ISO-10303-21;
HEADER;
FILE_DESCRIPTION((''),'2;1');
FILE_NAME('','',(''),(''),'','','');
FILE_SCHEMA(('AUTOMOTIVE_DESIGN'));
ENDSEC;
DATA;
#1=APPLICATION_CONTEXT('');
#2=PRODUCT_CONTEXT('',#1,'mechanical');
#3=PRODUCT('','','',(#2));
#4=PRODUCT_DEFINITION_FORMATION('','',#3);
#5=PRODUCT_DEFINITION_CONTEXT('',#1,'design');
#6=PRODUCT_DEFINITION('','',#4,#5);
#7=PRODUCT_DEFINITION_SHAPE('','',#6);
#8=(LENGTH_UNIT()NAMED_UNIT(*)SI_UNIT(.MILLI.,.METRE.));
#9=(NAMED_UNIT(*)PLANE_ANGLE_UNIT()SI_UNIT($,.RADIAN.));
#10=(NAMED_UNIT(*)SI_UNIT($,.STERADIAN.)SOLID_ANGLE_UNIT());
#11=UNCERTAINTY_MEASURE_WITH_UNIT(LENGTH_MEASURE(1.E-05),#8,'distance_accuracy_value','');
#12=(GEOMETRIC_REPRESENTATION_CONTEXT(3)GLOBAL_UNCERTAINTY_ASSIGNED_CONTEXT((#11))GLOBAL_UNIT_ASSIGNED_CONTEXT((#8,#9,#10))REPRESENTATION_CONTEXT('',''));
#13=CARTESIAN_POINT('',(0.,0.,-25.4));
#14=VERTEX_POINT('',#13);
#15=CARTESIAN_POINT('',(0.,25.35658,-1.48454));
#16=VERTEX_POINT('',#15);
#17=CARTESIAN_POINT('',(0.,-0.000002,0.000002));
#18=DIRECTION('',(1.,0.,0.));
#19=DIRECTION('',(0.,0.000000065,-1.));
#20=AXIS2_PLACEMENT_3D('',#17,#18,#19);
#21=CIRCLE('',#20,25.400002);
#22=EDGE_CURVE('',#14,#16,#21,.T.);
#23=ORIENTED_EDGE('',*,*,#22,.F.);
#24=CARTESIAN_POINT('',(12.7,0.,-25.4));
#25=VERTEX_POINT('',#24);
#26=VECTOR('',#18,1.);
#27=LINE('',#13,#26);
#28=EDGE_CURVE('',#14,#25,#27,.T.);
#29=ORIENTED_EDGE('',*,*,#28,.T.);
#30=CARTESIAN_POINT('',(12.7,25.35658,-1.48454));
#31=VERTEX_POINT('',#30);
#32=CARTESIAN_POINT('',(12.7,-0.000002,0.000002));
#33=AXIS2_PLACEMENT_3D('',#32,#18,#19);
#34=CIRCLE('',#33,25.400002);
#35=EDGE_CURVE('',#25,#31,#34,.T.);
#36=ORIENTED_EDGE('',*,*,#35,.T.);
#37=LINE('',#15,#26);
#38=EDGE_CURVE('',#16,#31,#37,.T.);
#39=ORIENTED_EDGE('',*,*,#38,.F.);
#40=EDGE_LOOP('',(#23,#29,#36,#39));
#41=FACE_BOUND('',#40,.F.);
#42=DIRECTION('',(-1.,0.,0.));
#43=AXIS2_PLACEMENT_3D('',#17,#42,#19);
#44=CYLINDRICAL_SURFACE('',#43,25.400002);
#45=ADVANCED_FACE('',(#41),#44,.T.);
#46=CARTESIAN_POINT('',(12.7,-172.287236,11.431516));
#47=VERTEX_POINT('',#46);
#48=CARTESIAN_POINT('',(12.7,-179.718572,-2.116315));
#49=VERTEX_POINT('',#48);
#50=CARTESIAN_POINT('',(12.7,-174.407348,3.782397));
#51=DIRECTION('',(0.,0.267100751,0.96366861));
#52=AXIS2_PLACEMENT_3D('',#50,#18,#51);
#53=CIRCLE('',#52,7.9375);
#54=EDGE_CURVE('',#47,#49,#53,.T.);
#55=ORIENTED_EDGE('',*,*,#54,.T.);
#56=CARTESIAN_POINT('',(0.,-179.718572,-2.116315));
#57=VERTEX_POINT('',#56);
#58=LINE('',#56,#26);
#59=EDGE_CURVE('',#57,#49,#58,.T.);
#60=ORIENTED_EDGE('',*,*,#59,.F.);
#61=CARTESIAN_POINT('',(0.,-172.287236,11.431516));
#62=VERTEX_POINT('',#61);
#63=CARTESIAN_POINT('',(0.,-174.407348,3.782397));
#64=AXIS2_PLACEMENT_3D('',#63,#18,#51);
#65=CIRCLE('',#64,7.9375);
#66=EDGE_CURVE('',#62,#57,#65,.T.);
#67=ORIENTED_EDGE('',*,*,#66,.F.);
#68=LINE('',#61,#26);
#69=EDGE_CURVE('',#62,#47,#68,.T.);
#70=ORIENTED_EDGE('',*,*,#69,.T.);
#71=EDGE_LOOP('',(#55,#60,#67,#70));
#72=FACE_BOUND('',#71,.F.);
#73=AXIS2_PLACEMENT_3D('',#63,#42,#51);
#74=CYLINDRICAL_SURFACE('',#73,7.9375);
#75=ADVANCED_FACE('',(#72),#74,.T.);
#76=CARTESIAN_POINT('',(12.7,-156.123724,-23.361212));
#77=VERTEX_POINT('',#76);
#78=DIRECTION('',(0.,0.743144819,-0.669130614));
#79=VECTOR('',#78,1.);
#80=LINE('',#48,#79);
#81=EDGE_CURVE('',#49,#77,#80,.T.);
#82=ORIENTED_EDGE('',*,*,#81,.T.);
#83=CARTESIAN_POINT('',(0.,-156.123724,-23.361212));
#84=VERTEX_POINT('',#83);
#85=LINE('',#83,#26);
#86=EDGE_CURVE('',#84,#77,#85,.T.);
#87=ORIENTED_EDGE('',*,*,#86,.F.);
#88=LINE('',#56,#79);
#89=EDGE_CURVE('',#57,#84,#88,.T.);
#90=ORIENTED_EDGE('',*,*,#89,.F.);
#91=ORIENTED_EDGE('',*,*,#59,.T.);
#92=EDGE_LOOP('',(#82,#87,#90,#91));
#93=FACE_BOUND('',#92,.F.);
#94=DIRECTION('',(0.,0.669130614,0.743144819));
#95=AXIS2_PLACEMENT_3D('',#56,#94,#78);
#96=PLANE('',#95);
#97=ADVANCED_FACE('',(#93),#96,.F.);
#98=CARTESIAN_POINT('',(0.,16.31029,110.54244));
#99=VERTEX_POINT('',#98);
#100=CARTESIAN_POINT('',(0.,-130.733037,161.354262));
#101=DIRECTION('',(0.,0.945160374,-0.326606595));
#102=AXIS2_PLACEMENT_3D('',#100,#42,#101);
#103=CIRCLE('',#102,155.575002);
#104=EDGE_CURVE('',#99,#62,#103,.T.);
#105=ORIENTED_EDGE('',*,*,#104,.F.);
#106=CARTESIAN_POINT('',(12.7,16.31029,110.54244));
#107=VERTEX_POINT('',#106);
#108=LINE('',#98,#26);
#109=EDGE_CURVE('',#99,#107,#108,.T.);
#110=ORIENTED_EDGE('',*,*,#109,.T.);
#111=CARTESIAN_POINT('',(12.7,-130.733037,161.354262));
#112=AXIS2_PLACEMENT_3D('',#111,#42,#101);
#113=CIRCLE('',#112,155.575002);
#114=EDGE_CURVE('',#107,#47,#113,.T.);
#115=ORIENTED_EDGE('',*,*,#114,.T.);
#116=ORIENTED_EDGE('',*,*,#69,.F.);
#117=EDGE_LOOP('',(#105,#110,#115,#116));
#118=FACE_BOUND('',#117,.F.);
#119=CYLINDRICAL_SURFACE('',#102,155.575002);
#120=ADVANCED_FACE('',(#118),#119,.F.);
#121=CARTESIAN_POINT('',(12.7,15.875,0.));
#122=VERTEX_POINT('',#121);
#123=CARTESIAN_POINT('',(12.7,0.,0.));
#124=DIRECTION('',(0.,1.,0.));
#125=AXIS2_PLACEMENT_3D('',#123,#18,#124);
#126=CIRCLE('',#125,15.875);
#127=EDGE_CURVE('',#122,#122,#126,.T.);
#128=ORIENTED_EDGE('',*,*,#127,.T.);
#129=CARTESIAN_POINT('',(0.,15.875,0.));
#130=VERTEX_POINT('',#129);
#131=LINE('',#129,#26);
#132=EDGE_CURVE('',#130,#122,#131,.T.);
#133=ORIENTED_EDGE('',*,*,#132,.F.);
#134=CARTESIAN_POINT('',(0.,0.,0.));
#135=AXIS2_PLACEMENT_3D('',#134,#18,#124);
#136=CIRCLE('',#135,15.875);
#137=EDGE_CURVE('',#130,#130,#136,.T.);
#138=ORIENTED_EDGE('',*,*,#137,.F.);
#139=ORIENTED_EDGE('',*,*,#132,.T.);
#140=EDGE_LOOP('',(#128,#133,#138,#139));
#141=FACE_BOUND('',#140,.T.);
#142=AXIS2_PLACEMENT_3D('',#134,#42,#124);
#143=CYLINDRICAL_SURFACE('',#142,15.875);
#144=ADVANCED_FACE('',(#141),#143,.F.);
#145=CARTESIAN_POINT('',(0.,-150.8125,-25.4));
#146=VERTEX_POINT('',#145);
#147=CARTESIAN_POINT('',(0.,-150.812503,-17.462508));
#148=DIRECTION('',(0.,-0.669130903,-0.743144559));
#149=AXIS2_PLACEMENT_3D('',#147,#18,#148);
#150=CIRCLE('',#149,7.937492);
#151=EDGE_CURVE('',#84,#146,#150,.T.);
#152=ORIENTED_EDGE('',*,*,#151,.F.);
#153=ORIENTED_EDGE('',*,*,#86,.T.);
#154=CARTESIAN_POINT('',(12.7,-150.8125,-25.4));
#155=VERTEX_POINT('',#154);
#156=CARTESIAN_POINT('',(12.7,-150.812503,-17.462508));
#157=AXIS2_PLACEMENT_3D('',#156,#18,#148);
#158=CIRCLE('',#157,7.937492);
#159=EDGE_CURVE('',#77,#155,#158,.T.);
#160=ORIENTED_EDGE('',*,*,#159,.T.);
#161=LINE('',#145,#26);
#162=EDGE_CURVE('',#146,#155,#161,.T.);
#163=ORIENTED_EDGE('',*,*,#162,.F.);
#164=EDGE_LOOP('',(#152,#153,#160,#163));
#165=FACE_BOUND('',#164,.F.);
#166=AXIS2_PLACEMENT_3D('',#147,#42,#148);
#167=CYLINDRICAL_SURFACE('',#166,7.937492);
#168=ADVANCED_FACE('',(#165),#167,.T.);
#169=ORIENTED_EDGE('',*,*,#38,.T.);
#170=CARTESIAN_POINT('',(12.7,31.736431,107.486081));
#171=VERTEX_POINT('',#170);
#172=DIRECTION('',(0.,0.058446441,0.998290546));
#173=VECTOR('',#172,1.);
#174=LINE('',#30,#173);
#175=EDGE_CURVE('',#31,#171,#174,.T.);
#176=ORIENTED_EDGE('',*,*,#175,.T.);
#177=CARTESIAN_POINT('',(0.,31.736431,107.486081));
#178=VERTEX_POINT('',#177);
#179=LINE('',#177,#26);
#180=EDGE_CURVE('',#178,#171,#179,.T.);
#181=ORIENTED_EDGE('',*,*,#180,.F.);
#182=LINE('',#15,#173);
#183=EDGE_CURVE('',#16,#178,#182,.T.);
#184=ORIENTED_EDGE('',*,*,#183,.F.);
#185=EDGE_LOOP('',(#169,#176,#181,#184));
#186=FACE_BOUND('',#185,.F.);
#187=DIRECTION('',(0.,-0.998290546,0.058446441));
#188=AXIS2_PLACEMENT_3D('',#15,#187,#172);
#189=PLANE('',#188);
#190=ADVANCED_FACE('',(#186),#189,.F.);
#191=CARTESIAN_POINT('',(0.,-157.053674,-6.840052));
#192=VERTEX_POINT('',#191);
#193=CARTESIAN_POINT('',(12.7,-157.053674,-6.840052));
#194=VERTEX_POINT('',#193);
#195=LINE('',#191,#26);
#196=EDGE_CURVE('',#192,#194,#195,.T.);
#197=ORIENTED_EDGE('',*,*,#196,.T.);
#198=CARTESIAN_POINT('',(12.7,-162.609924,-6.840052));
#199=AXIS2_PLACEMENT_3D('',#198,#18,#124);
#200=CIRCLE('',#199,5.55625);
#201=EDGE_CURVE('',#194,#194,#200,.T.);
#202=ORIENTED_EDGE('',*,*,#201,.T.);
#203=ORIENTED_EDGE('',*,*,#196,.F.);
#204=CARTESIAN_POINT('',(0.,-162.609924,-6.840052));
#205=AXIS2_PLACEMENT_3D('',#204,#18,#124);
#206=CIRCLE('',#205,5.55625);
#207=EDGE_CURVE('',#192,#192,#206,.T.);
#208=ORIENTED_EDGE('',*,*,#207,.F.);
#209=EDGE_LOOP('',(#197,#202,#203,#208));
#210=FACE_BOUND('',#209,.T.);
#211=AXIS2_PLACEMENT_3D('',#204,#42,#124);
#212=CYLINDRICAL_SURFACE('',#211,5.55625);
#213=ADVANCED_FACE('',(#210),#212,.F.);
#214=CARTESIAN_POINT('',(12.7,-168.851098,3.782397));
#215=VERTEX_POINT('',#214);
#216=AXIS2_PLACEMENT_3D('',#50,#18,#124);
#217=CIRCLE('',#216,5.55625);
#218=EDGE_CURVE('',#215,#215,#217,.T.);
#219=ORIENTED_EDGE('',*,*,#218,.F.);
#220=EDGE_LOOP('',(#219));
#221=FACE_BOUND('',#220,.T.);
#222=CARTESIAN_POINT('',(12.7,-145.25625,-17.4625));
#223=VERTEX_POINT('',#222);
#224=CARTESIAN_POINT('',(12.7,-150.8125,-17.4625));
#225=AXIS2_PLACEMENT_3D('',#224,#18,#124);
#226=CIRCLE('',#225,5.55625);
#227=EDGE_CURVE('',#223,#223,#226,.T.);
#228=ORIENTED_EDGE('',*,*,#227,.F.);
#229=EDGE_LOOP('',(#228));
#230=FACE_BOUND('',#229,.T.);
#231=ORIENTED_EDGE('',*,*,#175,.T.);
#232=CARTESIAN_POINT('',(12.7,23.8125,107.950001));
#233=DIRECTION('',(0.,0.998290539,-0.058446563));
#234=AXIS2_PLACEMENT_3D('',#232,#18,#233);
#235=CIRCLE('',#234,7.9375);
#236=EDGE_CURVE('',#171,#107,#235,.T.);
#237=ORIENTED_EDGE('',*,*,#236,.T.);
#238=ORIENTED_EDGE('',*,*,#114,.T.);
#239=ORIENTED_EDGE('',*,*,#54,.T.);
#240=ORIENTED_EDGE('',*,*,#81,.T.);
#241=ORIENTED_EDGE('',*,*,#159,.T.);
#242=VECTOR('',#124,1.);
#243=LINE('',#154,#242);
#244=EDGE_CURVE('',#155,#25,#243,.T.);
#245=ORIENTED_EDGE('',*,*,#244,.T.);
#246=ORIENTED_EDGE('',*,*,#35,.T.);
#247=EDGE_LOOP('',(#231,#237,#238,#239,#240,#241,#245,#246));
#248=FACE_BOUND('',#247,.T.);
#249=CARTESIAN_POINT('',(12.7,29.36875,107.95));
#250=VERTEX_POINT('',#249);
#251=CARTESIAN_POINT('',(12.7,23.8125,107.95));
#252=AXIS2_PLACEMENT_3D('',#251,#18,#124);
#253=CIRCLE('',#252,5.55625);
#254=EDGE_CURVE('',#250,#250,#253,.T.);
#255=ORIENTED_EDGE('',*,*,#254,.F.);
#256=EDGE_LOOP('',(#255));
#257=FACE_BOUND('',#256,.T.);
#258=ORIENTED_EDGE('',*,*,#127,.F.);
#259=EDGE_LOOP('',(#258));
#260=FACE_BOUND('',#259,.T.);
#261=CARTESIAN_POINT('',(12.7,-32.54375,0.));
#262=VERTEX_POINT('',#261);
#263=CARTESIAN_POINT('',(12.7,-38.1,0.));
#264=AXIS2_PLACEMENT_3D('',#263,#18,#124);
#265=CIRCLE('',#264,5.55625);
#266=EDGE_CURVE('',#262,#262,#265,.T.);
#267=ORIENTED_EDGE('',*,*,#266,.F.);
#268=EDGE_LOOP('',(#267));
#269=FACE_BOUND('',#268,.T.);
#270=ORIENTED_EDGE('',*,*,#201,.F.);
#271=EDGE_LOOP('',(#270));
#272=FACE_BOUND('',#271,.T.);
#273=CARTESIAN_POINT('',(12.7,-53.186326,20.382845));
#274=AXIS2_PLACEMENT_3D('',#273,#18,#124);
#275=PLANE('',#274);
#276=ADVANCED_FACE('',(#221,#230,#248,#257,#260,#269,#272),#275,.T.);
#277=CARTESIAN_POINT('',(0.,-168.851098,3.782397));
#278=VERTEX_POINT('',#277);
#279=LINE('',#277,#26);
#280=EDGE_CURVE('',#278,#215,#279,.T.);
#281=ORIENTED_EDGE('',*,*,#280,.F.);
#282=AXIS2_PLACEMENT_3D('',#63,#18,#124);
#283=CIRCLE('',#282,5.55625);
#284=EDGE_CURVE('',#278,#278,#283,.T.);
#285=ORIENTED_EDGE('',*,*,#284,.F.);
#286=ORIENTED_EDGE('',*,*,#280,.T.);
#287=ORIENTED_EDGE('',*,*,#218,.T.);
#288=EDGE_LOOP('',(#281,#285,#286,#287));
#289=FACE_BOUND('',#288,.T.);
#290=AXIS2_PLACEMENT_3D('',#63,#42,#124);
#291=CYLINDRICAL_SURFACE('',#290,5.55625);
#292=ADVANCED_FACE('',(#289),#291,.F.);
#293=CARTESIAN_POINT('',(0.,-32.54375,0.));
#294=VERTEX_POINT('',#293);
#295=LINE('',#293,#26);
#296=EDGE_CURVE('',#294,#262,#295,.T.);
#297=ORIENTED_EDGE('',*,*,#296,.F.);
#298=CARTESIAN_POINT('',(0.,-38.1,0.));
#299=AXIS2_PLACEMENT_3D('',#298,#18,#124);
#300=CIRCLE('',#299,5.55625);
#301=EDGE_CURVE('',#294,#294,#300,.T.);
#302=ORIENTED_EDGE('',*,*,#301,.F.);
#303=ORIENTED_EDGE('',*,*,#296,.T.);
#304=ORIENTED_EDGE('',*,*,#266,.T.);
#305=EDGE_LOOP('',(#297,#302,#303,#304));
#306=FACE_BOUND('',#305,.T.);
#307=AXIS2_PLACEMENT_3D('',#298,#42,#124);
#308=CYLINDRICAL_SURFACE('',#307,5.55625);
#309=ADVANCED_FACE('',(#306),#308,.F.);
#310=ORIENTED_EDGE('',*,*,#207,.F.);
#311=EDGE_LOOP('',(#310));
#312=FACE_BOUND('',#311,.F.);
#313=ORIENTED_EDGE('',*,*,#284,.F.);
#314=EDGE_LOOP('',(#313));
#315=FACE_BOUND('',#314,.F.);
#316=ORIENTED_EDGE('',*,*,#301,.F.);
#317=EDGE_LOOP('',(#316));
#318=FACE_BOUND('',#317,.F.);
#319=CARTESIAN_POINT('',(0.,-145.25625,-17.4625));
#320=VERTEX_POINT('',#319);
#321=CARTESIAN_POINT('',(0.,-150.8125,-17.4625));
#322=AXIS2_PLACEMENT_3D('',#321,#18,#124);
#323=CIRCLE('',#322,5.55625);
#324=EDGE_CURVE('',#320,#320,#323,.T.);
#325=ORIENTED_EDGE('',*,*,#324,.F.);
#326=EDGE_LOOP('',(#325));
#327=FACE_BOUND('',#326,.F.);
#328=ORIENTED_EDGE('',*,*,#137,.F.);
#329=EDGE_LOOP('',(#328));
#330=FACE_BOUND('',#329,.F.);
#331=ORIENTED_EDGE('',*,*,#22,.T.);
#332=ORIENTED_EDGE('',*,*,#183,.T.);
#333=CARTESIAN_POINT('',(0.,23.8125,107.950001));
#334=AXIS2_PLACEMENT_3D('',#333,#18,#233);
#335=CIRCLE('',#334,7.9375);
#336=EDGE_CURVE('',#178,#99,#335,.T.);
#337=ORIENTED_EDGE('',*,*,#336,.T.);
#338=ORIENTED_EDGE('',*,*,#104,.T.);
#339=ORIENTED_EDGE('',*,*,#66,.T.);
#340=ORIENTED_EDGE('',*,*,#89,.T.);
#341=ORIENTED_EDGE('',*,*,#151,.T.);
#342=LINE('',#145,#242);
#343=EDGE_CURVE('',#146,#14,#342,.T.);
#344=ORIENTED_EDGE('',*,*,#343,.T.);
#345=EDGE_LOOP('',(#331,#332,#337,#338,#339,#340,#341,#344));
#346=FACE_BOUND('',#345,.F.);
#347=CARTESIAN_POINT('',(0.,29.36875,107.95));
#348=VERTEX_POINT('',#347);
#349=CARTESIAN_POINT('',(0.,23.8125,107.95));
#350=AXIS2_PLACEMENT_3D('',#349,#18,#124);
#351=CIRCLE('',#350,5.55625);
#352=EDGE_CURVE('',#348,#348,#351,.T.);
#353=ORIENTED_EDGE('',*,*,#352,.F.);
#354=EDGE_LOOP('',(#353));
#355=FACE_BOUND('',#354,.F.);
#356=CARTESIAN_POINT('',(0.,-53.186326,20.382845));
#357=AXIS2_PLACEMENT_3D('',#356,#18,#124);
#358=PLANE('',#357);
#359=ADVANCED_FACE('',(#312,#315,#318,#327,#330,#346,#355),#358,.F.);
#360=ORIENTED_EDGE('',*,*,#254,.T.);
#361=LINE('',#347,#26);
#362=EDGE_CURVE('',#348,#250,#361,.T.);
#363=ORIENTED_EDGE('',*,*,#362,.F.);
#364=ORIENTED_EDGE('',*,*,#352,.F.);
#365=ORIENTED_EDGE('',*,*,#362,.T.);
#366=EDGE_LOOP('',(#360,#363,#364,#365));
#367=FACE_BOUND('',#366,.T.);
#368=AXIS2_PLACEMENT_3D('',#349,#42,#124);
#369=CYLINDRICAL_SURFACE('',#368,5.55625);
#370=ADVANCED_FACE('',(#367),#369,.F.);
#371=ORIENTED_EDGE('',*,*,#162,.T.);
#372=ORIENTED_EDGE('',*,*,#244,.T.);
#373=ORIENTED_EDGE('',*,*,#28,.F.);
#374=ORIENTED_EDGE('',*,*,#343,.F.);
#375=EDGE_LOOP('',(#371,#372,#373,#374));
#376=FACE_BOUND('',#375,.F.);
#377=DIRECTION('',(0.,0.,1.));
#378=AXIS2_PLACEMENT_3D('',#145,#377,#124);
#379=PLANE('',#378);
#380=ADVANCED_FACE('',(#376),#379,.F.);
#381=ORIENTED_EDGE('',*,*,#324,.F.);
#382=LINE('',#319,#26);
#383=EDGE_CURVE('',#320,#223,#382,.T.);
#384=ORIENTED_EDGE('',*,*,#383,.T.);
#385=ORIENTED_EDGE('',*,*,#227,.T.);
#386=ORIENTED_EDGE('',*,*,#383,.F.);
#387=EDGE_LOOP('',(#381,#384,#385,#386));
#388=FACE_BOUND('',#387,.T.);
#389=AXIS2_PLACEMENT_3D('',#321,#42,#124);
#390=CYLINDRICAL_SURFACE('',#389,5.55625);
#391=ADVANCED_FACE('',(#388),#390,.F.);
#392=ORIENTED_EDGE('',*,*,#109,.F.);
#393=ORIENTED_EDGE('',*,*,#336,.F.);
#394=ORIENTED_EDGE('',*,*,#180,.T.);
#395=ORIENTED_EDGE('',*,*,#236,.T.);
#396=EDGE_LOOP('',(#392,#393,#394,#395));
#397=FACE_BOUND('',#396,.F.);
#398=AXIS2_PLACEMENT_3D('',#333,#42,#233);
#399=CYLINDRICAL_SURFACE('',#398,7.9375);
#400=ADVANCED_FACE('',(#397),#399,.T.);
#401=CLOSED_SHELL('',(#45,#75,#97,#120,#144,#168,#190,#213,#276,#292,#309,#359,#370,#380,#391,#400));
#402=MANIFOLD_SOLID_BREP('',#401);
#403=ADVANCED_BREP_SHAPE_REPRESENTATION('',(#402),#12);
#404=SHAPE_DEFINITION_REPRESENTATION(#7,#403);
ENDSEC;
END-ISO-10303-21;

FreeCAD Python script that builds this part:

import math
import FreeCAD as App
import Part
import Sketcher
Q = App.Units.Quantity

doc = App.newDocument("Part")
body = doc.addObject("PartDesign::Body", "Body")

sketch1 = body.newObject("Sketcher::SketchObject", "Sketch")
sketch1.AttachmentSupport = (doc.getObject("YZ_Plane"), [""])
sketch1.MapMode = "FlatFace"
sketch1.addGeometry([
    Part.LineSegment(App.Vector(-150.8125, -25.4, 0), App.Vector(0, -25.4, 0)),
    Part.ArcOfCircle(Part.Circle(App.Vector(-0.000002, 0.000002, 0), App.Vector(0, 0, 1), 25.400002), math.radians(-89.999996), math.radians(-3.350649)),
    Part.LineSegment(App.Vector(25.35658, -1.48454, 0), App.Vector(31.736431, 107.486081, 0)),
    Part.ArcOfCircle(Part.Circle(App.Vector(23.8125, 107.950001, 0), App.Vector(0, 0, 1), 7.9375), math.radians(-3.350651), math.radians(160.937064)),
    Part.ArcOfCircle(Part.Circle(App.Vector(-130.733037, 161.354262, 0), App.Vector(0, 0, 1), 155.575002), math.radians(-105.491817), math.radians(-19.062939)),
    Part.ArcOfCircle(Part.Circle(App.Vector(-174.407348, 3.782397, 0), App.Vector(0, 0, 1), 7.9375), math.radians(74.508183), math.radians(228)),
    Part.LineSegment(App.Vector(-179.718572, -2.116315, 0), App.Vector(-156.123724, -23.361212, 0)),
    Part.ArcOfCircle(Part.Circle(App.Vector(-150.812503, -17.462508, 0), App.Vector(0, 0, 1), 7.937492), math.radians(-132.000023), math.radians(-89.999979)),
    Part.Circle(App.Vector(-162.609924, -6.840052, 0), App.Vector(0, 0, 1), 5.55625),
    Part.Circle(App.Vector(-150.8125, -17.4625, 0), App.Vector(0, 0, 1), 5.55625),
    Part.Circle(App.Vector(-174.407348, 3.782397, 0), App.Vector(0, 0, 1), 5.55625),
    Part.Circle(App.Vector(-38.1, 0, 0), App.Vector(0, 0, 1), 5.55625),
    Part.Circle(App.Vector(0, 0, 0), App.Vector(0, 0, 1), 15.875),
    Part.Circle(App.Vector(23.8125, 107.95, 0), App.Vector(0, 0, 1), 5.55625),
], False)
sketch1.addConstraint([
    Sketcher.Constraint("Tangent", 0, 2, 1, 1),
    Sketcher.Constraint("Tangent", 1, 2, 2, 1),
    Sketcher.Constraint("Tangent", 2, 2, 3, 1),
    Sketcher.Constraint("Tangent", 3, 2, 4, 2),
    Sketcher.Constraint("Tangent", 4, 1, 5, 1),
    Sketcher.Constraint("Tangent", 5, 2, 6, 1),
    Sketcher.Constraint("Tangent", 6, 2, 7, 1),
    Sketcher.Constraint("Tangent", 7, 2, 0, 1),
    Sketcher.Constraint("Horizontal", 0),
    Sketcher.Constraint("Coincident", 1, 3, -1, 1),
    Sketcher.Constraint("Coincident", 12, 3, -1, 1),
    Sketcher.Constraint("Coincident", 9, 3, 7, 3),
    Sketcher.Constraint("Coincident", 10, 3, 5, 3),
    Sketcher.Constraint("Coincident", 13, 3, 3, 3),
    Sketcher.Constraint("Equal", 3, 5),
    Sketcher.Constraint("Equal", 8, 9),
    Sketcher.Constraint("Equal", 9, 10),
    Sketcher.Constraint("Equal", 10, 11),
    Sketcher.Constraint("Equal", 11, 13),
    Sketcher.Constraint("PointOnObject", 11, 3, -1),
    Sketcher.Constraint("Radius", 1, Q("1.0000001 in")),
    Sketcher.Constraint("Diameter", 12, Q("1.25 in")),
    Sketcher.Constraint("Diameter", 8, Q("0.4375 in")),
    Sketcher.Constraint("Angle", 6, Q("-42.000001 deg")),
    Sketcher.Constraint("Radius", 3, Q("0.3125 in")),
    Sketcher.Constraint("Radius", 4, Q("6.1250001 in")),
    Sketcher.Constraint("DistanceX", 11, 3, -1, 1, Q("1.5 in")),
    Sketcher.Constraint("Distance", 6, Q("1.25 in")),
    Sketcher.Constraint("DistanceX", 0, 1, 0, 2, Q("5.9375 in")),
    Sketcher.Constraint("DistanceY", -1, 1, 3, 3, Q("4.25 in")),
    Sketcher.Constraint("DistanceX", -1, 1, 3, 3, Q("0.9375 in")),
    Sketcher.Constraint("DistanceY", 9, 3, -1, 1, Q("0.6875 in")),
    Sketcher.Constraint("DistanceX", 8, 3, 6, 2, 6.4862),
    Sketcher.Constraint("DistanceY", 8, 3, 5, 3, 10.622449),
])
pad1 = body.newObject("PartDesign::Pad", "Pad")
pad1.Profile = sketch1
pad1.Length = Q("0.5 in")

doc.recompute()
